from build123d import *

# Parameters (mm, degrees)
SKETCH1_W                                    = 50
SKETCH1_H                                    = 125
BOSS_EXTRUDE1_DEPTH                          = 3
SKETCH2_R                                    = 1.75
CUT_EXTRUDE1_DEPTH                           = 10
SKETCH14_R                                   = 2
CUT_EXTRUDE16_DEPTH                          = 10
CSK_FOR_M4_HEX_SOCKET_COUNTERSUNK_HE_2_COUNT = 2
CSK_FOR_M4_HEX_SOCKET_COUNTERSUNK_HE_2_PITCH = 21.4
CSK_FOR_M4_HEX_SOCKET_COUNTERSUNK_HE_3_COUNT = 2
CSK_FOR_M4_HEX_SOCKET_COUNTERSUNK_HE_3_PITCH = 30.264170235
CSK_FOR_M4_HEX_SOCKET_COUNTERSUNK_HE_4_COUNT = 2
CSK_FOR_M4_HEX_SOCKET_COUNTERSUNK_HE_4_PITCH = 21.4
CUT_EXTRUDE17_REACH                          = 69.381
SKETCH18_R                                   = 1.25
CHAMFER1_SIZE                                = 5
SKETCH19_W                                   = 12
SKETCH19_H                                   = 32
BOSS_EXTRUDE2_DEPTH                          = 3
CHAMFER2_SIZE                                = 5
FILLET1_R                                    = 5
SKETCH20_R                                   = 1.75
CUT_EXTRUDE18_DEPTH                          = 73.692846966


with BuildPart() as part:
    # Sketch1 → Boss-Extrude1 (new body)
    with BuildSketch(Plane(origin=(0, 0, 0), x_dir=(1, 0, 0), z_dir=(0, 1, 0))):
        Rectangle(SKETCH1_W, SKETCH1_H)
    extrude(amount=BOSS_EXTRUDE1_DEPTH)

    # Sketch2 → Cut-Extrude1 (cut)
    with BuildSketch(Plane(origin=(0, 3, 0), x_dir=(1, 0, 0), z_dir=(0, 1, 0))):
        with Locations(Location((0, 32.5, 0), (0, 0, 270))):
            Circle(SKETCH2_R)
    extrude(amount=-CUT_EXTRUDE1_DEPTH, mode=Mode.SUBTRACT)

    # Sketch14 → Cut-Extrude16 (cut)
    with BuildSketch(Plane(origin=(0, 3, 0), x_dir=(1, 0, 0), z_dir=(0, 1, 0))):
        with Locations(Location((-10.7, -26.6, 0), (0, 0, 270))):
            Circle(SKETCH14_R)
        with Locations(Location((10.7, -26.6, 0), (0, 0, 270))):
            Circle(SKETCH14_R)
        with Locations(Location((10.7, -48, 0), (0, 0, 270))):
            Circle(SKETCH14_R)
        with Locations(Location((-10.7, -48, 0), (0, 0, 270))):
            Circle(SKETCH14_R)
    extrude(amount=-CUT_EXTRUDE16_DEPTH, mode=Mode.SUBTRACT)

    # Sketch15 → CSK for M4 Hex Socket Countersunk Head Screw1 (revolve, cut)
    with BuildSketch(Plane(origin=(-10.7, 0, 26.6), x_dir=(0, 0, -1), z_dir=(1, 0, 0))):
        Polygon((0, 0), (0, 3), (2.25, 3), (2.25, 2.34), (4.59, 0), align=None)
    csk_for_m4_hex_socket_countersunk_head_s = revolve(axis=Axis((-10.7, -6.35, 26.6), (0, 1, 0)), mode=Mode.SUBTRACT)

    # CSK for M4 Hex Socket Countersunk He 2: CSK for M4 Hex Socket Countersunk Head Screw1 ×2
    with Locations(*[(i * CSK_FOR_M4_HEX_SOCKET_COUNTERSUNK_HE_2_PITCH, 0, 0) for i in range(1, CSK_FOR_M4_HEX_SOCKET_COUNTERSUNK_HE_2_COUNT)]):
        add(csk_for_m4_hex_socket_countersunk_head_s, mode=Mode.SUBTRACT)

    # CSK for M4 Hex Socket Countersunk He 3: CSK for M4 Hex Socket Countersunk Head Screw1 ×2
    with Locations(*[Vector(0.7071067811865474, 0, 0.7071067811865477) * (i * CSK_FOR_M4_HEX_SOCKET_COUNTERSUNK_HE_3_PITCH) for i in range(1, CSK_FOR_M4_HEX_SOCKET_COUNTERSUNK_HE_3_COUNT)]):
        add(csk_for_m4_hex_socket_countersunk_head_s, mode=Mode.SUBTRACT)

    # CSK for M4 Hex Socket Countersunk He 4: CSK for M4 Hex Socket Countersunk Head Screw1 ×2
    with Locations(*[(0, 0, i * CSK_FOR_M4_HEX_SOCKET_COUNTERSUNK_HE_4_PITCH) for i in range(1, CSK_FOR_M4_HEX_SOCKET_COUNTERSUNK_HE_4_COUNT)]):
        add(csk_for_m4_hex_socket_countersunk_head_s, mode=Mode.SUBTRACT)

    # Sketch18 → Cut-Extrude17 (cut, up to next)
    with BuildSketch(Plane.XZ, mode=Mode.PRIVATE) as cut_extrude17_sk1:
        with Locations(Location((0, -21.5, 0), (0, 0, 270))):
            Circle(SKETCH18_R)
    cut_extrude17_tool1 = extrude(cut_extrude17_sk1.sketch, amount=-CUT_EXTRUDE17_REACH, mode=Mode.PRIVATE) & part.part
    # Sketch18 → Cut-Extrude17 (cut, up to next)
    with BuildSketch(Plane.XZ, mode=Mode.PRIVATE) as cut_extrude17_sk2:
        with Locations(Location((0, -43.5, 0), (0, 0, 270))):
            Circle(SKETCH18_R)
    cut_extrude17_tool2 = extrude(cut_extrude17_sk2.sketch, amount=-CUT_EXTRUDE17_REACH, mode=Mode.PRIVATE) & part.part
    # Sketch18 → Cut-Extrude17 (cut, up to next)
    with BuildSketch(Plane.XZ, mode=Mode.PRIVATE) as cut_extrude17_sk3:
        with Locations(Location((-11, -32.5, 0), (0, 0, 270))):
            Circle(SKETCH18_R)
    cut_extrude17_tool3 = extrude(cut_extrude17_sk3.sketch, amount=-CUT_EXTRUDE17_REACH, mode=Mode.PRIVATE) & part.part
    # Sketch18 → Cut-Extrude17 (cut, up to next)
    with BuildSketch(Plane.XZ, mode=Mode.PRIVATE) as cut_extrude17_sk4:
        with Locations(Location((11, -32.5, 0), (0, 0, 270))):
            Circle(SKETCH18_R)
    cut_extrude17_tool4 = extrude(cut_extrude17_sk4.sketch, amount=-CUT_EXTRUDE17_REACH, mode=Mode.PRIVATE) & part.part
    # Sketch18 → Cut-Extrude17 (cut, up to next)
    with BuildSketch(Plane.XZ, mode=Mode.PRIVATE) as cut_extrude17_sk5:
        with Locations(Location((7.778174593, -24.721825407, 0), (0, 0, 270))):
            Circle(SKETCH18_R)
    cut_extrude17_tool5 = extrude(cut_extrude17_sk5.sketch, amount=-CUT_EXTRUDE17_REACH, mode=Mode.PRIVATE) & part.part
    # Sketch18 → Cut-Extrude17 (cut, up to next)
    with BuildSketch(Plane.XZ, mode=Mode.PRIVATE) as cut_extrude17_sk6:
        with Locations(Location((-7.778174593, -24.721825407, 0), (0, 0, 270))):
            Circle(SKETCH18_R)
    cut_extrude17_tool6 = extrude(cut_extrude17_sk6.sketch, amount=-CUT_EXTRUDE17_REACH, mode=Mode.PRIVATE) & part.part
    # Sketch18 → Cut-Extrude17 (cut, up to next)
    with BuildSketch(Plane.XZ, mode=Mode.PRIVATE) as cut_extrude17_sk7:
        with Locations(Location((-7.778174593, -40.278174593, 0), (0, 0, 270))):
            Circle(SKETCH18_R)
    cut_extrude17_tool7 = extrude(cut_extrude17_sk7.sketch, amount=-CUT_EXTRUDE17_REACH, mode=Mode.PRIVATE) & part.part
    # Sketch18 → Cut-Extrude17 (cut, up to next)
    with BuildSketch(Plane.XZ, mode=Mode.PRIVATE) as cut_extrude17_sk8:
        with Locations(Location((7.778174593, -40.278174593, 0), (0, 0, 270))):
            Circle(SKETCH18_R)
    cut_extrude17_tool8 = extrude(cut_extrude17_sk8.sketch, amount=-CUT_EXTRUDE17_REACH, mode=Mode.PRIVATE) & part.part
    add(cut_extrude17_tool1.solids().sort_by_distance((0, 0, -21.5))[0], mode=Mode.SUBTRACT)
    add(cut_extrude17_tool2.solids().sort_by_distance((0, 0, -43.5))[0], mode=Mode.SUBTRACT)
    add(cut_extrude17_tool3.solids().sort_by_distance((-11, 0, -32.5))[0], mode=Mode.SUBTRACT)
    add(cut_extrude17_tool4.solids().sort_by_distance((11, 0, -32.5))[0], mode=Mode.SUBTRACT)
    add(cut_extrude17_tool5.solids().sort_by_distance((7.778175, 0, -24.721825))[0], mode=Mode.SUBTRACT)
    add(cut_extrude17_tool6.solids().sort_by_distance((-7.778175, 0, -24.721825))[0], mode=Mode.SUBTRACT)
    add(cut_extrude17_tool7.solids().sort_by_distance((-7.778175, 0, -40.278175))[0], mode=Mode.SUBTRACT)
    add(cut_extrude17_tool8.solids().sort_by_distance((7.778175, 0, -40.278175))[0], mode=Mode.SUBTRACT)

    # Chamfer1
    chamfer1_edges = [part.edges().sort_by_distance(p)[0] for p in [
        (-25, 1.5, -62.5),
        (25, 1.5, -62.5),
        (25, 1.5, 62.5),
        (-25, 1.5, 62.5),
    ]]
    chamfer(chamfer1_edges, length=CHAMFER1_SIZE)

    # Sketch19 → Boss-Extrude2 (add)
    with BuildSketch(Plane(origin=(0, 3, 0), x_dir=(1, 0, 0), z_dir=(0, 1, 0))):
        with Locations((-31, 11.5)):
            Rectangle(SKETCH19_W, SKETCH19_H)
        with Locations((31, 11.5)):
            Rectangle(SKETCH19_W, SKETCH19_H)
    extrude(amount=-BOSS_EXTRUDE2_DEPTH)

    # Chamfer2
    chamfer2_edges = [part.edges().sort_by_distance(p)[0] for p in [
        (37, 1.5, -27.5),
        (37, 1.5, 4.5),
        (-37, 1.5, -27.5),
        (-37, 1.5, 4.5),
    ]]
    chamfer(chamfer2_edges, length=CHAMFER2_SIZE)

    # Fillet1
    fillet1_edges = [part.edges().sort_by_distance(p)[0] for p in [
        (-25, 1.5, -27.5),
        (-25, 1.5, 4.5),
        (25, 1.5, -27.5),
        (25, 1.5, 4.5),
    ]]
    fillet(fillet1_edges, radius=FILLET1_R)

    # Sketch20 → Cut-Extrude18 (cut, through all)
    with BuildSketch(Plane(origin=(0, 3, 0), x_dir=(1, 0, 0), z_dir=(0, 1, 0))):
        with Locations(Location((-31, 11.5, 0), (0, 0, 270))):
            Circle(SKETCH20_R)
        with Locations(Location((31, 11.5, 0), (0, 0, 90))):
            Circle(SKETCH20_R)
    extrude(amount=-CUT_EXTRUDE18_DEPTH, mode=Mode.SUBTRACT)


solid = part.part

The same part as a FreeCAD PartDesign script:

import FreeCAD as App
import Part
import Sketcher
from FreeCAD import Vector
Q = App.Units.Quantity


def edges_at(feature, points):
    """Names of the edges that pass closest to the given points."""
    edges = feature.Shape.Edges
    near = lambda p: min(range(len(edges)), key=lambda i: edges[i].distToShape(Part.Vertex(*p))[0])
    return sorted({f"Edge{near(p) + 1}" for p in points})


def add_polygon(sketch, points):
    """Adds a closed chain of lines whose ends are joined by coincident constraints."""
    first, n = sketch.GeometryCount, len(points)
    for a, b in zip(points, points[1:] + points[:1]):
        sketch.addGeometry(Part.LineSegment(App.Vector(*a, 0), App.Vector(*b, 0)), False)
    for i in range(n):
        sketch.addConstraint(Sketcher.Constraint("Coincident", first + i, 2, first + (i + 1) % n, 1))

doc = App.newDocument("Part")
body = doc.addObject("PartDesign::Body", "Body")

sketch1 = doc.addObject("Sketcher::SketchObject", "Sketch")
body.addObject(sketch1)
sketch1.AttachmentSupport = (doc.XZ_Plane, [""])
sketch1.MapMode = "FlatFace"
add_polygon(sketch1, [(-25, -62), (-25, 62), (25, 62), (25, -62)])
sketch1.addConstraint([
    Sketcher.Constraint("Vertical", 0),
    Sketcher.Constraint("Horizontal", 1),
    Sketcher.Constraint("Vertical", 2),
    Sketcher.Constraint("Horizontal", 3),
    Sketcher.Constraint("Symmetric", 0, 2, 2, 2, -1, 1),
    Sketcher.Constraint("DistanceX", 1, 1, 1, 2, 50.0),
    Sketcher.Constraint("DistanceY", 0, 1, 0, 2, 125.0),
])
pad1 = doc.addObject("PartDesign::Pad", "Pad")
body.addObject(pad1)
pad1.Profile = sketch1
pad1.Length = 3
pad1.Reversed = True

sketch2 = doc.addObject("Sketcher::SketchObject", "Sketch001")
body.addObject(sketch2)
sketch2.AttachmentSupport = (doc.XZ_Plane, [""])
sketch2.MapMode = "FlatFace"
sketch2.AttachmentOffset = App.Placement(Vector(0, 0, -3), App.Rotation())
sketch2.addGeometry(Part.Circle(Vector(0, -32.5, 0), Vector(0, 0, 1), 1.8), False)
sketch2.addConstraint([
    Sketcher.Constraint("PointOnObject", 0, 3, -2),
    Sketcher.Constraint("Diameter", 0, 3.5),
    Sketcher.Constraint("DistanceY", 0, 3, -1, 1, 32.5),
])
pocket1 = doc.addObject("PartDesign::Pocket", "Pocket")
body.addObject(pocket1)
pocket1.Profile = sketch2
pocket1.Length = 10
pocket1.Reversed = True

sketch3 = doc.addObject("Sketcher::SketchObject", "Sketch002")
body.addObject(sketch3)
sketch3.AttachmentSupport = (doc.XZ_Plane, [""])
sketch3.MapMode = "FlatFace"
sketch3.AttachmentOffset = App.Placement(Vector(0, 0, -3), App.Rotation())
sketch3.addGeometry([
    Part.Circle(Vector(-10.7, 26.6, 0), Vector(0, 0, 1), 2),
    Part.Circle(Vector(10.7, 26.6, 0), Vector(0, 0, 1), 2),
    Part.Circle(Vector(10.7, 48, 0), Vector(0, 0, 1), 2),
    Part.Circle(Vector(-10.7, 48, 0), Vector(0, 0, 1), 2),
], False)
sketch3.addConstraint([
    Sketcher.Constraint("Equal", 0, 1),
    Sketcher.Constraint("Equal", 1, 2),
    Sketcher.Constraint("Equal", 2, 3),
    Sketcher.Constraint("Symmetric", 0, 3, 1, 3, -2),
    Sketcher.Constraint("Symmetric", 2, 3, 3, 3, -2),
    Sketcher.Constraint("Vertical", 1, 3, 2, 3),
    Sketcher.Constraint("Diameter", 0, 4.0),
    Sketcher.Constraint("DistanceY", -1, 1, 2, 3, 48.0),
    Sketcher.Constraint("DistanceX", 0, 3, -1, 1, 10.7),
    Sketcher.Constraint("DistanceY", -1, 1, 0, 3, 26.6),
])
pocket2 = doc.addObject("PartDesign::Pocket", "Pocket001")
body.addObject(pocket2)
pocket2.Profile = sketch3
pocket2.Length = 10
pocket2.Reversed = True

sketch4 = doc.addObject("Sketcher::SketchObject", "Sketch003")
body.addObject(sketch4)
sketch4.AttachmentSupport = (doc.YZ_Plane, [""])
sketch4.MapMode = "FlatFace"
sketch4.AttachmentOffset = App.Placement(Vector(0, 0, -10.7), App.Rotation())
add_polygon(sketch4, [(3, 26.6), (0, 26.6), (0, 22), (2.3, 24.4), (3, 24.4)])
sketch4.addGeometry(Part.LineSegment(Vector(0, 26.6, 0), Vector(3, 26.6, 0)), True)
sketch4.addConstraint([
    Sketcher.Constraint("Horizontal", 0),
    Sketcher.Constraint("Vertical", 1),
    Sketcher.Constraint("Horizontal", 3),
    Sketcher.Constraint("Vertical", 4),
    Sketcher.Constraint("Horizontal", 5),
    Sketcher.Constraint("Coincident", 5, 1, 0, 2),
    Sketcher.Constraint("PointOnObject", 0, 2, -2),
    Sketcher.Constraint("Vertical", 3, 2, 5, 2),
    Sketcher.Constraint("DistanceX", 0, 2, 0, 1, 3.0),
    Sketcher.Constraint("Angle", 2, Q("45 deg")),
    Sketcher.Constraint("DistanceX", 3, 1, 3, 2, 0.66),
    Sketcher.Constraint("DistanceY", 1, 2, 1, 1, 4.59),
    Sketcher.Constraint("DistanceY", -1, 1, 0, 2, 26.6),
])
groove = doc.addObject("PartDesign::Groove", "Groove")
body.addObject(groove)
groove.Profile = sketch4
groove.ReferenceAxis = (sketch4, ["Axis0"])
groove.Angle = 360
doc.recompute()

linearpattern = doc.addObject("PartDesign::LinearPattern", "LinearPattern")
body.addObject(linearpattern)
linearpattern.Originals = [groove]
linearpattern.Direction = (doc.X_Axis, [""])
linearpattern.Mode = "offset"
linearpattern.Offset = 21.4
linearpattern.Occurrences = 2
body.Tip = linearpattern
doc.recompute()

datumline = doc.addObject("PartDesign::Line", "DatumLine")
body.addObject(datumline)
datumline.Placement = App.Placement(Vector(0, 0, 0), App.Rotation(Vector(0, 0, 1), Vector(0.707106781, 0, 0.707106781)))
linearpattern2 = doc.addObject("PartDesign::LinearPattern", "LinearPattern001")
body.addObject(linearpattern2)
linearpattern2.Originals = [groove]
linearpattern2.Direction = (datumline, [""])
linearpattern2.Mode = "offset"
linearpattern2.Offset = 30.26417
linearpattern2.Occurrences = 2
body.Tip = linearpattern2
doc.recompute()

linearpattern3 = doc.addObject("PartDesign::LinearPattern", "LinearPattern002")
body.addObject(linearpattern3)
linearpattern3.Originals = [groove]
linearpattern3.Direction = (doc.Z_Axis, [""])
linearpattern3.Mode = "offset"
linearpattern3.Offset = 21.4
linearpattern3.Occurrences = 2
body.Tip = linearpattern3

sketch5 = doc.addObject("Sketcher::SketchObject", "Sketch004")
body.addObject(sketch5)
sketch5.AttachmentSupport = (doc.XZ_Plane, [""])
sketch5.MapMode = "FlatFace"
sketch5.addGeometry(Part.Circle(Vector(0, -21.5, 0), Vector(0, 0, 1), 1.2), False)
sketch5.addConstraint([
    Sketcher.Constraint("PointOnObject", 0, 3, -2),
    Sketcher.Constraint("Diameter", 0, 2.5),
    Sketcher.Constraint("DistanceY", 0, 3, -1, 1, 21.5),
])
pocket3 = doc.addObject("PartDesign::Pocket", "Pocket002")
body.addObject(pocket3)
pocket3.Profile = sketch5
pocket3.Type = "UpToFirst"

sketch6 = doc.addObject("Sketcher::SketchObject", "Sketch005")
body.addObject(sketch6)
sketch6.AttachmentSupport = (doc.XZ_Plane, [""])
sketch6.MapMode = "FlatFace"
sketch6.addGeometry(Part.Circle(Vector(0, -43.5, 0), Vector(0, 0, 1), 1.2), False)
sketch6.addConstraint([
    Sketcher.Constraint("PointOnObject", 0, 3, -2),
    Sketcher.Constraint("Diameter", 0, 2.5),
    Sketcher.Constraint("DistanceY", 0, 3, -1, 1, 43.5),
])
pocket4 = doc.addObject("PartDesign::Pocket", "Pocket003")
body.addObject(pocket4)
pocket4.Profile = sketch6
pocket4.Type = "UpToFirst"

sketch7 = doc.addObject("Sketcher::SketchObject", "Sketch006")
body.addObject(sketch7)
sketch7.AttachmentSupport = (doc.XZ_Plane, [""])
sketch7.MapMode = "FlatFace"
sketch7.addGeometry(Part.Circle(Vector(-11, -32.5, 0), Vector(0, 0, 1), 1.2), False)
sketch7.addConstraint([
    Sketcher.Constraint("Diameter", 0, 2.5),
    Sketcher.Constraint("DistanceX", 0, 3, -1, 1, 11.0),
    Sketcher.Constraint("DistanceY", 0, 3, -1, 1, 32.5),
])
pocket5 = doc.addObject("PartDesign::Pocket", "Pocket004")
body.addObject(pocket5)
pocket5.Profile = sketch7
pocket5.Type = "UpToFirst"

sketch8 = doc.addObject("Sketcher::SketchObject", "Sketch007")
body.addObject(sketch8)
sketch8.AttachmentSupport = (doc.XZ_Plane, [""])
sketch8.MapMode = "FlatFace"
sketch8.addGeometry(Part.Circle(Vector(11, -32.5, 0), Vector(0, 0, 1), 1.2), False)
sketch8.addConstraint([
    Sketcher.Constraint("Diameter", 0, 2.5),
    Sketcher.Constraint("DistanceX", -1, 1, 0, 3, 11.0),
    Sketcher.Constraint("DistanceY", 0, 3, -1, 1, 32.5),
])
pocket6 = doc.addObject("PartDesign::Pocket", "Pocket005")
body.addObject(pocket6)
pocket6.Profile = sketch8
pocket6.Type = "UpToFirst"

sketch9 = doc.addObject("Sketcher::SketchObject", "Sketch008")
body.addObject(sketch9)
sketch9.AttachmentSupport = (doc.XZ_Plane, [""])
sketch9.MapMode = "FlatFace"
sketch9.addGeometry(Part.Circle(Vector(7.8, -24.7, 0), Vector(0, 0, 1), 1.2), False)
sketch9.addConstraint([
    Sketcher.Constraint("Diameter", 0, 2.5),
    Sketcher.Constraint("DistanceX", -1, 1, 0, 3, 7.778175),
    Sketcher.Constraint("DistanceY", 0, 3, -1, 1, 24.721825),
])
pocket7 = doc.addObject("PartDesign::Pocket", "Pocket006")
body.addObject(pocket7)
pocket7.Profile = sketch9
pocket7.Type = "UpToFirst"

sketch10 = doc.addObject("Sketcher::SketchObject", "Sketch009")
body.addObject(sketch10)
sketch10.AttachmentSupport = (doc.XZ_Plane, [""])
sketch10.MapMode = "FlatFace"
sketch10.addGeometry(Part.Circle(Vector(-7.8, -24.7, 0), Vector(0, 0, 1), 1.2), False)
sketch10.addConstraint([
    Sketcher.Constraint("Diameter", 0, 2.5),
    Sketcher.Constraint("DistanceX", 0, 3, -1, 1, 7.778175),
    Sketcher.Constraint("DistanceY", 0, 3, -1, 1, 24.721825),
])
pocket8 = doc.addObject("PartDesign::Pocket", "Pocket007")
body.addObject(pocket8)
pocket8.Profile = sketch10
pocket8.Type = "UpToFirst"

sketch11 = doc.addObject("Sketcher::SketchObject", "Sketch010")
body.addObject(sketch11)
sketch11.AttachmentSupport = (doc.XZ_Plane, [""])
sketch11.MapMode = "FlatFace"
sketch11.addGeometry(Part.Circle(Vector(-7.8, -40.3, 0), Vector(0, 0, 1), 1.2), False)
sketch11.addConstraint([
    Sketcher.Constraint("Diameter", 0, 2.5),
    Sketcher.Constraint("DistanceX", 0, 3, -1, 1, 7.778175),
    Sketcher.Constraint("DistanceY", 0, 3, -1, 1, 40.278175),
])
pocket9 = doc.addObject("PartDesign::Pocket", "Pocket008")
body.addObject(pocket9)
pocket9.Profile = sketch11
pocket9.Type = "UpToFirst"

sketch12 = doc.addObject("Sketcher::SketchObject", "Sketch011")
body.addObject(sketch12)
sketch12.AttachmentSupport = (doc.XZ_Plane, [""])
sketch12.MapMode = "FlatFace"
sketch12.addGeometry(Part.Circle(Vector(7.8, -40.3, 0), Vector(0, 0, 1), 1.2), False)
sketch12.addConstraint([
    Sketcher.Constraint("Diameter", 0, 2.5),
    Sketcher.Constraint("DistanceX", -1, 1, 0, 3, 7.778175),
    Sketcher.Constraint("DistanceY", 0, 3, -1, 1, 40.278175),
])
pocket10 = doc.addObject("PartDesign::Pocket", "Pocket009")
body.addObject(pocket10)
pocket10.Profile = sketch12
pocket10.Type = "UpToFirst"
doc.recompute()

chamfer = doc.addObject("PartDesign::Chamfer", "Chamfer")
body.addObject(chamfer)
chamfer.Base = (pocket10, edges_at(pocket10, [
    (-25, 1.5, -62.5),
    (25, 1.5, -62.5),
    (25, 1.5, 62.5),
    (-25, 1.5, 62.5),
]))
chamfer.Size = 5

sketch13 = doc.addObject("Sketcher::SketchObject", "Sketch012")
body.addObject(sketch13)
sketch13.AttachmentSupport = (doc.XZ_Plane, [""])
sketch13.MapMode = "FlatFace"
sketch13.AttachmentOffset = App.Placement(Vector(0, 0, -3), App.Rotation())
add_polygon(sketch13, [(-37, -28), (-37, 4), (-25, 4), (-25, -28)])
add_polygon(sketch13, [(25, -28), (25, 4), (37, 4), (37, -28)])
sketch13.addConstraint([
    Sketcher.Constraint("Vertical", 0),
    Sketcher.Constraint("Horizontal", 1),
    Sketcher.Constraint("Vertical", 2),
    Sketcher.Constraint("Horizontal", 3),
    Sketcher.Constraint("Vertical", 4),
    Sketcher.Constraint("Horizontal", 5),
    Sketcher.Constraint("Vertical", 6),
    Sketcher.Constraint("Horizontal", 7),
    Sketcher.Constraint("Symmetric", 1, 2, 4, 2, -2),
    Sketcher.Constraint("Symmetric", 3, 2, 6, 2, -2),
    Sketcher.Constraint("DistanceX", 1, 1, 1, 2, 12.0),
    Sketcher.Constraint("DistanceY", 0, 1, 0, 2, 32.0),
    Sketcher.Constraint("DistanceX", 0, 2, -1, 1, 37.0),
    Sketcher.Constraint("DistanceY", -1, 1, 0, 2, 4.5),
])
pad2 = doc.addObject("PartDesign::Pad", "Pad001")
body.addObject(pad2)
pad2.Profile = sketch13
pad2.Length = 3
doc.recompute()

chamfer2 = doc.addObject("PartDesign::Chamfer", "Chamfer001")
body.addObject(chamfer2)
chamfer2.Base = (pad2, edges_at(pad2, [
    (37, 1.5, -27.5),
    (37, 1.5, 4.5),
    (-37, 1.5, -27.5),
    (-37, 1.5, 4.5),
]))
chamfer2.Size = 5
doc.recompute()

fillet = doc.addObject("PartDesign::Fillet", "Fillet")
body.addObject(fillet)
fillet.Base = (chamfer2, edges_at(chamfer2, [
    (-25, 1.5, -27.5),
    (-25, 1.5, 4.5),
    (25, 1.5, -27.5),
    (25, 1.5, 4.5),
]))
fillet.Radius = 5

sketch14 = doc.addObject("Sketcher::SketchObject", "Sketch013")
body.addObject(sketch14)
sketch14.AttachmentSupport = (doc.XZ_Plane, [""])
sketch14.MapMode = "FlatFace"
sketch14.AttachmentOffset = App.Placement(Vector(0, 0, -3), App.Rotation())
sketch14.addGeometry([
    Part.Circle(Vector(-31, -11.5, 0), Vector(0, 0, 1), 1.8),
    Part.Circle(Vector(31, -11.5, 0), Vector(0, 0, 1), 1.8),
], False)
sketch14.addConstraint([
    Sketcher.Constraint("Equal", 0, 1),
    Sketcher.Constraint("Symmetric", 0, 3, 1, 3, -2),
    Sketcher.Constraint("Diameter", 0, 3.5),
    Sketcher.Constraint("DistanceX", 0, 3, -1, 1, 31.0),
    Sketcher.Constraint("DistanceY", 0, 3, -1, 1, 11.5),
])
pocket11 = doc.addObject("PartDesign::Pocket", "Pocket010")
body.addObject(pocket11)
pocket11.Profile = sketch14
pocket11.Type = "ThroughAll"
pocket11.Reversed = True

doc.recompute()
